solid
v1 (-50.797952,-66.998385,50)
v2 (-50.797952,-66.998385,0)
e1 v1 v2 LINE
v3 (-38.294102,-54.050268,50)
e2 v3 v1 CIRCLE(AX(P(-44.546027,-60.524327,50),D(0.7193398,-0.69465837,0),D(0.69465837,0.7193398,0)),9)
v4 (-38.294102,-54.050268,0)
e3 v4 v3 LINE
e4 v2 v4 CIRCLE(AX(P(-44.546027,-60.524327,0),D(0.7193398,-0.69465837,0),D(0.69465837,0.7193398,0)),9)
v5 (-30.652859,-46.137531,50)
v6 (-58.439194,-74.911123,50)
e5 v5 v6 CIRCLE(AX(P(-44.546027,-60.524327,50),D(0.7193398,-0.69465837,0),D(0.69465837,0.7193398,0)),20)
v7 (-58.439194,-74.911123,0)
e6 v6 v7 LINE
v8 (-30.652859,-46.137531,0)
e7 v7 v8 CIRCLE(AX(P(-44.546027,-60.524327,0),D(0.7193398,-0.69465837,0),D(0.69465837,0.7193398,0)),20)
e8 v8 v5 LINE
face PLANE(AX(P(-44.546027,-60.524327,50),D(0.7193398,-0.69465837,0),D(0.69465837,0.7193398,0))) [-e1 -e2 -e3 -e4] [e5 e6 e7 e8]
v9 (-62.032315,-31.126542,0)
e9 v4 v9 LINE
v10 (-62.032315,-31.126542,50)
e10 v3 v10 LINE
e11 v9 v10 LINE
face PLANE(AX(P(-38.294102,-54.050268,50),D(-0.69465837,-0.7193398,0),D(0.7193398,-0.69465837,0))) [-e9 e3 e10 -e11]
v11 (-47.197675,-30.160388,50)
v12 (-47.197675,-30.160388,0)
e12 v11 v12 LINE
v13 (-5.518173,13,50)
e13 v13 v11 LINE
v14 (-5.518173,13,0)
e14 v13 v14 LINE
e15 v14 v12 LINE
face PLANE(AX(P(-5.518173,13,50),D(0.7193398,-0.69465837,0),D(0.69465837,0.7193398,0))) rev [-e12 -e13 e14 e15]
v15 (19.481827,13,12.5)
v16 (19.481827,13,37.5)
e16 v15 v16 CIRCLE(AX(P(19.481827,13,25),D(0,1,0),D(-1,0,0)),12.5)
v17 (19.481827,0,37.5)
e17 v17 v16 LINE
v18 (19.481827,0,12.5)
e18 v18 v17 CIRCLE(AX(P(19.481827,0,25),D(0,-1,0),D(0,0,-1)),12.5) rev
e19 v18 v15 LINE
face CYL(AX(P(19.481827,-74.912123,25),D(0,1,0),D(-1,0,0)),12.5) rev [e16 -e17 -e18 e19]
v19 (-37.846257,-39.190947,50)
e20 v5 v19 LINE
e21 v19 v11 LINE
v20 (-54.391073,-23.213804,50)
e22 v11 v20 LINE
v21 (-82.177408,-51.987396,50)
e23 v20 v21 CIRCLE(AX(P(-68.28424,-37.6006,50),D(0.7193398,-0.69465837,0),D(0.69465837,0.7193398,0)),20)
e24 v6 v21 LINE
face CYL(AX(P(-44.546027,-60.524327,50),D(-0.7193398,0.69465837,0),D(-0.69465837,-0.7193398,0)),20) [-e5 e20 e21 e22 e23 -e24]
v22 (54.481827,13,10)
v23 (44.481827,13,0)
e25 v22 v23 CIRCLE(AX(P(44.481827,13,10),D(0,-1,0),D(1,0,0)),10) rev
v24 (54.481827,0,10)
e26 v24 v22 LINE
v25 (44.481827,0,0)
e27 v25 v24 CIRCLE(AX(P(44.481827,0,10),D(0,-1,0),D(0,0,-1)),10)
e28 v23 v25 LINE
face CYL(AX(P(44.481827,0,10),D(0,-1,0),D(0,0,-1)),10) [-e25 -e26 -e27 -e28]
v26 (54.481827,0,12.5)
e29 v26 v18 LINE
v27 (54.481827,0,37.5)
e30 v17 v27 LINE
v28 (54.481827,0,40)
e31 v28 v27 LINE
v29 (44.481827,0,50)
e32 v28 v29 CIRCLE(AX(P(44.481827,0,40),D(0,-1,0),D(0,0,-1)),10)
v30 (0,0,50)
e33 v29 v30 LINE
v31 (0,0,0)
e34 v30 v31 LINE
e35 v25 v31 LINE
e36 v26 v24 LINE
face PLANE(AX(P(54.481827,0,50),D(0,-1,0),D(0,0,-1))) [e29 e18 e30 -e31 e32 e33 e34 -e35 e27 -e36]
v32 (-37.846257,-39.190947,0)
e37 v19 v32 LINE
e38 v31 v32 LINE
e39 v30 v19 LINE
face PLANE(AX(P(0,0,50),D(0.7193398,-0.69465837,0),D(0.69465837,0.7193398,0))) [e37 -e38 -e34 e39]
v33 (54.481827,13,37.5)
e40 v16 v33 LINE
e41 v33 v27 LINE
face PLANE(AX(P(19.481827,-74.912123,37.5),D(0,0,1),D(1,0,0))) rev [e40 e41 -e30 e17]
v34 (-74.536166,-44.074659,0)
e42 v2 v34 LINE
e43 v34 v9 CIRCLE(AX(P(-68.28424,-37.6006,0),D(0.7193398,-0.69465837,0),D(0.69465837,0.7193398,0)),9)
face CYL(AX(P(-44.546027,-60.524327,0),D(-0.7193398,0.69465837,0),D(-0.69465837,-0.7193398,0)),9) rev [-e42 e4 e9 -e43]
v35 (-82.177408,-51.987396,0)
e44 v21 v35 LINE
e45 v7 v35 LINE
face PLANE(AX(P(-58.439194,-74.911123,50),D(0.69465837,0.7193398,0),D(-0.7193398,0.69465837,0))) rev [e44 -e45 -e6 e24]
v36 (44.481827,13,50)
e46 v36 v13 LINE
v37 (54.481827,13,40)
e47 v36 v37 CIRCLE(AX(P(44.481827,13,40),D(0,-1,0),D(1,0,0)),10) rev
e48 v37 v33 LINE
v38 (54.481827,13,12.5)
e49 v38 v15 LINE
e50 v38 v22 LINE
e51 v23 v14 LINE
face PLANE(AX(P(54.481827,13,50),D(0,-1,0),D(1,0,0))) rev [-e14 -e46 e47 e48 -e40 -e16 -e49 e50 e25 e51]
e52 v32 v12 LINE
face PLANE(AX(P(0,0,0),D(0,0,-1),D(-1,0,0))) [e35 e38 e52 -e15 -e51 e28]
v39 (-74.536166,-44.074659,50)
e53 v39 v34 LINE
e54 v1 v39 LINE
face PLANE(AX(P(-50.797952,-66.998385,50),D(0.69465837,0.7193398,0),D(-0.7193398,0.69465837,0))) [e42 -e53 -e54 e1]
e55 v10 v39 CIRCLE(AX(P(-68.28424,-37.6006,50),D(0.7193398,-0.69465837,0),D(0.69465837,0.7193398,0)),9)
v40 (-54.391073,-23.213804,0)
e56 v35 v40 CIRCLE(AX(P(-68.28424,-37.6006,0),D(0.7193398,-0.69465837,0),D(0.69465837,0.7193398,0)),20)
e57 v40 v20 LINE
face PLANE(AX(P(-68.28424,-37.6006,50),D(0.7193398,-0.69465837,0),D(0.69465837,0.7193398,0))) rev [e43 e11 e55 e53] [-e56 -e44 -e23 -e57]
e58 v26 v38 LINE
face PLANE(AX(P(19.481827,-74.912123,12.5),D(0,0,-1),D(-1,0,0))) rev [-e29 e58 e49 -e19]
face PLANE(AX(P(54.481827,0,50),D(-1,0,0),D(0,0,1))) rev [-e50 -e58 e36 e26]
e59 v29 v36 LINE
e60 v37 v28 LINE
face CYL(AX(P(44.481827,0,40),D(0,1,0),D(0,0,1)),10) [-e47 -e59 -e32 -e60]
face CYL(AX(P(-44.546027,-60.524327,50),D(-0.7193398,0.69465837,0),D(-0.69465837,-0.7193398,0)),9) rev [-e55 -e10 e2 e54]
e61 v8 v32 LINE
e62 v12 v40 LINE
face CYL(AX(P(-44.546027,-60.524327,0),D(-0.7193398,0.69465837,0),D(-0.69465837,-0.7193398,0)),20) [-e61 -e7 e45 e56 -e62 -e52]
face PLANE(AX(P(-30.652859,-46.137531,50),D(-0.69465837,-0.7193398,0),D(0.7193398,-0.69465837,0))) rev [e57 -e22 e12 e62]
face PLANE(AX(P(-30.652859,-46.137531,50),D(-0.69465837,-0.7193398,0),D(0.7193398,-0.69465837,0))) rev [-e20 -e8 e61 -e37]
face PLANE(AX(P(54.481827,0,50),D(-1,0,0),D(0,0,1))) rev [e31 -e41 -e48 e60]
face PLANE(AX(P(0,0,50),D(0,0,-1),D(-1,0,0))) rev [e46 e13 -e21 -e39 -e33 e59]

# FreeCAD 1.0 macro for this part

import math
import FreeCAD as App
import Part
import Sketcher
Q = App.Units.Quantity


def edges_at(feature, points):
    """Names of the edges that pass closest to the given points."""
    edges = feature.Shape.Edges
    near = lambda p: min(range(len(edges)), key=lambda i: edges[i].distToShape(Part.Vertex(*p))[0])
    return sorted({f"Edge{near(p) + 1}" for p in points})

doc = App.newDocument("Part")
params = doc.addObject("Spreadsheet::Sheet", "Params")
for row, (alias, value) in enumerate([
    ("sketch1_width", "60 mm"),
    ("sketch1_height", "13 mm"),
    ("sketch1_length", "80 mm"),
    ("sketch1_length2", "13 mm"),
    ("pad1_length", "50 mm"),
    ("sketch2_radius", "20 mm"),
    ("sketch2_radius2", "9 mm"),
    ("sketch2_width", "50 mm"),
    ("pad2_length", "33 mm"),
    ("sketch3_radius", "9 mm"),
    ("sketch3_width", "50 mm"),
    ("pocket1_length", "33 mm"),
    ("sketch4_radius", "12.5 mm"),
    ("sketch4_width", "35 mm"),
    ("fillet_radius", "10 mm"),
], start=1):
    params.set(f"A{row}", alias)
    params.set(f"B{row}", "=" + value)
    params.setAlias(f"B{row}", alias)

body = doc.addObject("PartDesign::Body", "Body")

sketch1 = body.newObject("Sketcher::SketchObject", "Sketch")
sketch1.AttachmentSupport = (doc.getObject("XY_Plane"), [""])
sketch1.MapMode = "FlatFace"
sketch1.addGeometry([
    Part.LineSegment(App.Vector(0, 0, 0), App.Vector(54.481827, 0, 0)),
    Part.LineSegment(App.Vector(54.481827, 0, 0), App.Vector(54.481827, 13, 0)),
    Part.LineSegment(App.Vector(54.481827, 13, 0), App.Vector(-5.518173, 13, 0)),
    Part.LineSegment(App.Vector(-5.518173, 13, 0), App.Vector(-61.090842, -44.547184, 0)),
    Part.LineSegment(App.Vector(-61.090842, -44.547184, 0), App.Vector(-51.739425, -53.577743, 0)),
    Part.LineSegment(App.Vector(-51.739425, -53.577743, 0), App.Vector(0, 0, 0)),
], False)
sketch1.addConstraint([
    Sketcher.Constraint("Coincident", 0, 2, 1, 1),
    Sketcher.Constraint("Coincident", 1, 2, 2, 1),
    Sketcher.Constraint("Coincident", 2, 2, 3, 1),
    Sketcher.Constraint("Coincident", 3, 2, 4, 1),
    Sketcher.Constraint("Coincident", 4, 2, 5, 1),
    Sketcher.Constraint("Coincident", 5, 2, 0, 1),
    Sketcher.Constraint("Horizontal", 0),
    Sketcher.Constraint("Vertical", 1),
    Sketcher.Constraint("Horizontal", 2),
    Sketcher.Constraint("Coincident", 5, 2, -1, 1),
    Sketcher.Constraint("Perpendicular", 3, 4),
    Sketcher.Constraint("Perpendicular", 4, 5),
    Sketcher.Constraint("DistanceX", 2, 2, 2, 1, 60.0),
    Sketcher.Constraint("DistanceY", 1, 1, 1, 2, 13.0),
    Sketcher.Constraint("Angle", 3, Q("-134 deg")),
    Sketcher.Constraint("Distance", 3, 80.0),
    Sketcher.Constraint("Distance", 4, 13.0),
])
sketch1.setExpression("Constraints[12]", "Params.sketch1_width")
sketch1.setExpression("Constraints[13]", "Params.sketch1_height")
sketch1.setExpression("Constraints[15]", "Params.sketch1_length")
sketch1.setExpression("Constraints[16]", "Params.sketch1_length2")
pad1 = body.newObject("PartDesign::Pad", "Pad")
pad1.Profile = sketch1
pad1.setExpression("Length", "Params.pad1_length")

sketch2 = body.newObject("Sketcher::SketchObject", "Sketch001")
sketch2.Placement = App.Placement(App.Vector(-4.675709, 4.515279, 0), App.Rotation(App.Vector(0, 0, -1), App.Vector(0.69465837, 0.7193398, 0), App.Vector(0.7193398, -0.69465837, 0), "ZXY"))
sketch2.addGeometry([
    Part.LineSegment(App.Vector(0, -54.481827, 0), App.Vector(-50, -54.481827, 0)),
    Part.ArcOfCircle(Part.Circle(App.Vector(-50, -74.481827, 0), App.Vector(0, 0, 1), 20), math.radians(90), math.radians(270)),
    Part.LineSegment(App.Vector(-50, -94.481827, 0), App.Vector(0, -94.481827, 0)),
    Part.ArcOfCircle(Part.Circle(App.Vector(0, -74.481827, 0), App.Vector(0, 0, 1), 20), math.radians(-90), math.radians(90)),
    Part.LineSegment(App.Vector(-50, -65.481827, 0), App.Vector(0, -65.481827, 0)),
    Part.ArcOfCircle(Part.Circle(App.Vector(0, -74.481827, 0), App.Vector(0, 0, 1), 9), math.radians(-90), math.radians(90)),
    Part.LineSegment(App.Vector(0, -83.481827, 0), App.Vector(-50, -83.481827, 0)),
    Part.ArcOfCircle(Part.Circle(App.Vector(-50, -74.481827, 0), App.Vector(0, 0, 1), 9), math.radians(90), math.radians(270)),
], False)
sketch2.addConstraint([
    Sketcher.Constraint("Tangent", 0, 2, 1, 1),
    Sketcher.Constraint("Tangent", 1, 2, 2, 1),
    Sketcher.Constraint("Tangent", 2, 2, 3, 1),
    Sketcher.Constraint("Tangent", 3, 2, 0, 1),
    Sketcher.Constraint("Tangent", 4, 2, 5, 2),
    Sketcher.Constraint("Tangent", 5, 1, 6, 1),
    Sketcher.Constraint("Tangent", 6, 2, 7, 2),
    Sketcher.Constraint("Tangent", 7, 1, 4, 1),
    Sketcher.Constraint("Horizontal", 0),
    Sketcher.Constraint("Horizontal", 2),
    Sketcher.Constraint("Horizontal", 4),
    Sketcher.Constraint("Horizontal", 6),
    Sketcher.Constraint("Coincident", 5, 3, 3, 3),
    Sketcher.Constraint("PointOnObject", 3, 3, -2),
    Sketcher.Constraint("Vertical", 7, 3, 0, 2),
    Sketcher.Constraint("Radius", 1, 20.0),
    Sketcher.Constraint("Radius", 5, 9.0),
    Sketcher.Constraint("DistanceX", 0, 2, 0, 1, 50.0),
    Sketcher.Constraint("DistanceY", 1, 3, -1, 1, 74.481827),
])
sketch2.setExpression("Constraints[15]", "Params.sketch2_radius")
sketch2.setExpression("Constraints[16]", "Params.sketch2_radius2")
sketch2.setExpression("Constraints[17]", "Params.sketch2_width")
pad2 = body.newObject("PartDesign::Pad", "Pad001")
pad2.Profile = sketch2
pad2.setExpression("Length", "Params.pad2_length")
pad2.Midplane = True

sketch3 = body.newObject("Sketcher::SketchObject", "Sketch002")
sketch3.Placement = App.Placement(App.Vector(-4.675709, 4.515279, 0), App.Rotation(App.Vector(0, 0, -1), App.Vector(0.69465837, 0.7193398, 0), App.Vector(0.7193398, -0.69465837, 0), "ZXY"))
sketch3.addGeometry([
    Part.LineSegment(App.Vector(-50, -83.481827, 0), App.Vector(0, -83.481827, 0)),
    Part.ArcOfCircle(Part.Circle(App.Vector(0, -74.481827, 0), App.Vector(0, 0, 1), 9), math.radians(-90), math.radians(90)),
    Part.LineSegment(App.Vector(0, -65.481827, 0), App.Vector(-50, -65.481827, 0)),
    Part.ArcOfCircle(Part.Circle(App.Vector(-50, -74.481827, 0), App.Vector(0, 0, 1), 9), math.radians(90), math.radians(270)),
], False)
sketch3.addConstraint([
    Sketcher.Constraint("Tangent", 0, 2, 1, 1),
    Sketcher.Constraint("Tangent", 1, 2, 2, 1),
    Sketcher.Constraint("Tangent", 2, 2, 3, 1),
    Sketcher.Constraint("Tangent", 3, 2, 0, 1),
    Sketcher.Constraint("Horizontal", 0),
    Sketcher.Constraint("Horizontal", 2),
    Sketcher.Constraint("PointOnObject", 1, 3, -2),
    Sketcher.Constraint("Radius", 1, 9.0),
    Sketcher.Constraint("DistanceX", 0, 1, 0, 2, 50.0),
    Sketcher.Constraint("DistanceY", 1, 3, -1, 1, 74.481827),
])
sketch3.setExpression("Constraints[7]", "Params.sketch3_radius")
sketch3.setExpression("Constraints[8]", "Params.sketch3_width")
pocket1 = body.newObject("PartDesign::Pocket", "Pocket")
pocket1.Profile = sketch3
pocket1.setExpression("Length", "Params.pocket1_length")
pocket1.Midplane = True

sketch4 = body.newObject("Sketcher::SketchObject", "Sketch003")
sketch4.AttachmentSupport = (doc.getObject("XZ_Plane"), [""])
sketch4.MapMode = "FlatFace"
sketch4.AttachmentOffset = App.Placement(App.Vector(0, 0, -13), App.Rotation())
sketch4.addGeometry([
    Part.LineSegment(App.Vector(54.481827, 12.5, 0), App.Vector(19.481827, 12.5, 0)),
    Part.ArcOfCircle(Part.Circle(App.Vector(19.481827, 25, 0), App.Vector(0, 0, 1), 12.5), math.radians(90), math.radians(270)),
    Part.LineSegment(App.Vector(19.481827, 37.5, 0), App.Vector(54.481827, 37.5, 0)),
    Part.ArcOfCircle(Part.Circle(App.Vector(54.481827, 25, 0), App.Vector(0, 0, 1), 12.5), math.radians(-90), math.radians(90)),
], False)
sketch4.addConstraint([
    Sketcher.Constraint("Tangent", 0, 2, 1, 2),
    Sketcher.Constraint("Tangent", 1, 1, 2, 1),
    Sketcher.Constraint("Tangent", 2, 2, 3, 2),
    Sketcher.Constraint("Tangent", 3, 1, 0, 1),
    Sketcher.Constraint("Horizontal", 0),
    Sketcher.Constraint("Horizontal", 2),
    Sketcher.Constraint("Radius", 1, 12.5),
    Sketcher.Constraint("DistanceX", 0, 2, 0, 1, 35.0),
    Sketcher.Constraint("DistanceY", -1, 1, 1, 3, 25.0),
    Sketcher.Constraint("DistanceX", -1, 1, 1, 3, 19.481827),
])
sketch4.setExpression("Constraints[6]", "Params.sketch4_radius")
sketch4.setExpression("Constraints[7]", "Params.sketch4_width")
pocket2 = body.newObject("PartDesign::Pocket", "Pocket001")
pocket2.Profile = sketch4
pocket2.Type = "UpToFirst"
pocket2.Reversed = True
doc.recompute()

fillet = body.newObject("PartDesign::Fillet", "Fillet")
fillet.Base = (pocket2, edges_at(pocket2, [(54.482, 6.5, 50), (54.482, 6.5, 0)]))
fillet.setExpression("Radius", "Params.fillet_radius")

doc.recompute()
